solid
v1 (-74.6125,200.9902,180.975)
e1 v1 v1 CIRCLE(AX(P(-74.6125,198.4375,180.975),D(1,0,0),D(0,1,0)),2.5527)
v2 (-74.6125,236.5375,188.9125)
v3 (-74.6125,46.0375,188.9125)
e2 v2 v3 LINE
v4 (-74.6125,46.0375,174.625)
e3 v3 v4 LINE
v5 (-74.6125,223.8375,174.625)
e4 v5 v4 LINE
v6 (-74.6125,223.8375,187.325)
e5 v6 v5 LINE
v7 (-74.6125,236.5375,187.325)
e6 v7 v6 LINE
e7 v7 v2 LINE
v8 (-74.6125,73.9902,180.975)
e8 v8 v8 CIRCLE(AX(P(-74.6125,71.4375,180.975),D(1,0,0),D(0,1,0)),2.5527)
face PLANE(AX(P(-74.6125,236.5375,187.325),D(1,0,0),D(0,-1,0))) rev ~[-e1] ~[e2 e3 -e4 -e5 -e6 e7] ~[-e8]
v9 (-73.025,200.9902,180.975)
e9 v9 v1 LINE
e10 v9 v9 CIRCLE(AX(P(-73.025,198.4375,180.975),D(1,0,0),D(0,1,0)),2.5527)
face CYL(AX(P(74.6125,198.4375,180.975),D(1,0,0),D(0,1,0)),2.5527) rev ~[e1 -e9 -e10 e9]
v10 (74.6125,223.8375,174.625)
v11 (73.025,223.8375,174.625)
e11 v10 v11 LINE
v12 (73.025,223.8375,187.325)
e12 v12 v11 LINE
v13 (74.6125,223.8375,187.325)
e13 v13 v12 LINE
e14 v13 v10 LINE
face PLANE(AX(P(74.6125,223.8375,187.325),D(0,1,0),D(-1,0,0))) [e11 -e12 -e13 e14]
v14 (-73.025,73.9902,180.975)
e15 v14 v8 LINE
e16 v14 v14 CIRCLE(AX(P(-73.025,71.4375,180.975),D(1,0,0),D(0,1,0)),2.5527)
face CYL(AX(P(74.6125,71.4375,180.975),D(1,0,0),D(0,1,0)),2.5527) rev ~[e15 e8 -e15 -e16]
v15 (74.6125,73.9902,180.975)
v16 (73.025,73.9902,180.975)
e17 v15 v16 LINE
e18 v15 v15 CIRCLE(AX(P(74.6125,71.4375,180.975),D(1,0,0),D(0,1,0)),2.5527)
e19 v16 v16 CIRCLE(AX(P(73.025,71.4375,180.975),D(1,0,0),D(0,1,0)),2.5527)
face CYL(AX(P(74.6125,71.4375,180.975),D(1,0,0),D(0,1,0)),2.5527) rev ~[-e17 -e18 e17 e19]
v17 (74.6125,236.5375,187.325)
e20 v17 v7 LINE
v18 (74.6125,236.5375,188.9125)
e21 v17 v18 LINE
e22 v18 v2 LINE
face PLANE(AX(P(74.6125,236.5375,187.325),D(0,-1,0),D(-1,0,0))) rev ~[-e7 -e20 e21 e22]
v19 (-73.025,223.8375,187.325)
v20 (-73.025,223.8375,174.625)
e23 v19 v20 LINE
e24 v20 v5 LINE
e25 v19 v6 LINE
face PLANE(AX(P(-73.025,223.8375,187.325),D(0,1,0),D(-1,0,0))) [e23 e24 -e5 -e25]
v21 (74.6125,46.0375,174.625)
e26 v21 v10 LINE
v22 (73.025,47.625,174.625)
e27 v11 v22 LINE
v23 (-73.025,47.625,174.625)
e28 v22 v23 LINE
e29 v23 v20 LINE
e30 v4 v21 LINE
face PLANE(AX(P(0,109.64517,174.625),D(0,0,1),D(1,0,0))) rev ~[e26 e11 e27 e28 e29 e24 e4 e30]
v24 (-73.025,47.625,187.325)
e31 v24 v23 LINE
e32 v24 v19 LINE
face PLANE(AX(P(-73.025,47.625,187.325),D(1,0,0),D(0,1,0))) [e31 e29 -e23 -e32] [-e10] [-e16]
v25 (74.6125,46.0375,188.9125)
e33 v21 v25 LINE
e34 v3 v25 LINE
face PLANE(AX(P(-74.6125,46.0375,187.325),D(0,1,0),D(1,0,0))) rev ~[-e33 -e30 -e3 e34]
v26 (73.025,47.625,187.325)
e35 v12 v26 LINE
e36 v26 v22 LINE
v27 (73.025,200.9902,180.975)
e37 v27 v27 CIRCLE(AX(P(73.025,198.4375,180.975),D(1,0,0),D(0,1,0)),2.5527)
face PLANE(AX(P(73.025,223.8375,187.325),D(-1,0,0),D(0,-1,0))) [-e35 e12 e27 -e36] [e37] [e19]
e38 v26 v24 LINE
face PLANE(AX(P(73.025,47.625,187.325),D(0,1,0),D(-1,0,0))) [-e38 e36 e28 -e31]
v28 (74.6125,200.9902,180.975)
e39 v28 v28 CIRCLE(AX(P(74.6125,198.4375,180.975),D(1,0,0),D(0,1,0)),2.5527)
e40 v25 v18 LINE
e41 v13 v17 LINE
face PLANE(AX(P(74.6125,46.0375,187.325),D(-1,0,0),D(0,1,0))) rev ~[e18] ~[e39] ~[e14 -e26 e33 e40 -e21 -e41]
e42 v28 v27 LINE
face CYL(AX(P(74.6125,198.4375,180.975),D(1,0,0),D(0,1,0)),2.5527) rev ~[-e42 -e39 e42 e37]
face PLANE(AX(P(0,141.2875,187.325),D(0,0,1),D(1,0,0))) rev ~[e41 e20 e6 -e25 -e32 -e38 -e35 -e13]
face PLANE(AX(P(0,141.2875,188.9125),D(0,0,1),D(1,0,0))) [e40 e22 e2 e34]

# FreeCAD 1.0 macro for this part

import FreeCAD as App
import Part
import Sketcher
from FreeCAD import Vector
Q = App.Units.Quantity


def add_polygon(sketch, points):
    """Adds a closed chain of lines whose ends are joined by coincident constraints."""
    first, n = sketch.GeometryCount, len(points)
    for a, b in zip(points, points[1:] + points[:1]):
        sketch.addGeometry(Part.LineSegment(App.Vector(*a, 0), App.Vector(*b, 0)), False)
    for i in range(n):
        sketch.addConstraint(Sketcher.Constraint("Coincident", first + i, 2, first + (i + 1) % n, 1))

doc = App.newDocument("Part")
body = doc.addObject("PartDesign::Body", "Body")

# Sketch on XY plane
sketch1 = doc.addObject("Sketcher::SketchObject", "Sketch")
body.addObject(sketch1)
sketch1.AttachmentSupport = (doc.XY_Plane, [""])
sketch1.MapMode = "FlatFace"
sketch1.AttachmentOffset = App.Placement(Vector(0, 0, 7.375 * 25.4), App.Rotation())
add_polygon(sketch1, [(-73, 47.6), (-73, 223.8), (-74.6, 223.8), (-74.6, 46), (74.6, 46), (74.6, 223.8), (73, 223.8), (73, 47.6)])  # lines 0-7
sketch1.addConstraint([
    Sketcher.Constraint("Vertical", 0),
    Sketcher.Constraint("Horizontal", 1),
    Sketcher.Constraint("Vertical", 2),
    Sketcher.Constraint("Horizontal", 3),
    Sketcher.Constraint("Vertical", 4),
    Sketcher.Constraint("Horizontal", 5),
    Sketcher.Constraint("Vertical", 6),
    Sketcher.Constraint("Horizontal", 7),
    Sketcher.Constraint("Symmetric", 1, 2, 4, 2, -2),
    Sketcher.Constraint("Equal", 1, 5),
    Sketcher.Constraint("DistanceY", 2, 2, 2, 1, Q("7 in")),
    Sketcher.Constraint("DistanceX", 7, 2, 7, 1, Q("5.75 in")),
    Sketcher.Constraint("DistanceX", 1, 2, 1, 1, Q("0.0625 in")),
    Sketcher.Constraint("DistanceY", 0, 1, 0, 2, Q("6.9375 in")),
    Sketcher.Constraint("DistanceY", -1, 1, 0, 2, Q("8.8125 in")),
])
pad1 = doc.addObject("PartDesign::Pad", "Pad")
body.addObject(pad1)
pad1.Profile = sketch1
pad1.Length = Q("0.5 in")
pad1.Reversed = True

# Sketch on XY plane
sketch2 = doc.addObject("Sketcher::SketchObject", "Sketch001")
body.addObject(sketch2)
sketch2.AttachmentSupport = (doc.XY_Plane, [""])
sketch2.MapMode = "FlatFace"
sketch2.AttachmentOffset = App.Placement(Vector(0, 0, 7.375 * 25.4), App.Rotation())
add_polygon(sketch2, [(-75, 46), (75, 46), (75, 237), (-75, 237)])  # lines 0-3
sketch2.addConstraint([
    Sketcher.Constraint("Horizontal", 0),
    Sketcher.Constraint("Vertical", 1),
    Sketcher.Constraint("Horizontal", 2),
    Sketcher.Constraint("Vertical", 3),
    Sketcher.Constraint("DistanceY", 1, 1, 1, 2, Q("7.5 in")),
    Sketcher.Constraint("DistanceX", 0, 1, 0, 2, Q("5.875 in")),
    Sketcher.Constraint("DistanceX", -1, 1, 0, 2, Q("2.9375 in")),
    Sketcher.Constraint("DistanceY", -1, 1, 0, 2, Q("1.8125 in")),
])
pad2 = doc.addObject("PartDesign::Pad", "Pad001")
body.addObject(pad2)
pad2.Profile = sketch2
pad2.Length = Q("0.0625 in")

# Sketch on YZ plane
sketch3 = doc.addObject("Sketcher::SketchObject", "Sketch002")
body.addObject(sketch3)
sketch3.AttachmentSupport = (doc.YZ_Plane, [""])
sketch3.MapMode = "FlatFace"
sketch3.AttachmentOffset = App.Placement(Vector(0, 0, 2.9375 * 25.4), App.Rotation())
sketch3.addGeometry([
    Part.Circle(Vector(71.4, 181, 0), Vector(0, 0, 1), 2.6),
    Part.Circle(Vector(198.4, 181, 0), Vector(0, 0, 1), 2.6),
], False)
sketch3.addConstraint([
    Sketcher.Constraint("Equal", 0, 1),
    Sketcher.Constraint("Horizontal", 0, 3, 1, 3),
    Sketcher.Constraint("Diameter", 0, Q("0.201 in")),
    Sketcher.Constraint("DistanceX", 0, 3, 1, 3, Q("5 in")),
    Sketcher.Constraint("DistanceX", -1, 1, 0, 3, Q("2.8125 in")),
    Sketcher.Constraint("DistanceY", -1, 1, 0, 3, Q("7.125 in")),
])
pocket1 = doc.addObject("PartDesign::Pocket", "Pocket")
body.addObject(pocket1)
pocket1.Profile = sketch3
pocket1.Type = "ThroughAll"

doc.recompute()
